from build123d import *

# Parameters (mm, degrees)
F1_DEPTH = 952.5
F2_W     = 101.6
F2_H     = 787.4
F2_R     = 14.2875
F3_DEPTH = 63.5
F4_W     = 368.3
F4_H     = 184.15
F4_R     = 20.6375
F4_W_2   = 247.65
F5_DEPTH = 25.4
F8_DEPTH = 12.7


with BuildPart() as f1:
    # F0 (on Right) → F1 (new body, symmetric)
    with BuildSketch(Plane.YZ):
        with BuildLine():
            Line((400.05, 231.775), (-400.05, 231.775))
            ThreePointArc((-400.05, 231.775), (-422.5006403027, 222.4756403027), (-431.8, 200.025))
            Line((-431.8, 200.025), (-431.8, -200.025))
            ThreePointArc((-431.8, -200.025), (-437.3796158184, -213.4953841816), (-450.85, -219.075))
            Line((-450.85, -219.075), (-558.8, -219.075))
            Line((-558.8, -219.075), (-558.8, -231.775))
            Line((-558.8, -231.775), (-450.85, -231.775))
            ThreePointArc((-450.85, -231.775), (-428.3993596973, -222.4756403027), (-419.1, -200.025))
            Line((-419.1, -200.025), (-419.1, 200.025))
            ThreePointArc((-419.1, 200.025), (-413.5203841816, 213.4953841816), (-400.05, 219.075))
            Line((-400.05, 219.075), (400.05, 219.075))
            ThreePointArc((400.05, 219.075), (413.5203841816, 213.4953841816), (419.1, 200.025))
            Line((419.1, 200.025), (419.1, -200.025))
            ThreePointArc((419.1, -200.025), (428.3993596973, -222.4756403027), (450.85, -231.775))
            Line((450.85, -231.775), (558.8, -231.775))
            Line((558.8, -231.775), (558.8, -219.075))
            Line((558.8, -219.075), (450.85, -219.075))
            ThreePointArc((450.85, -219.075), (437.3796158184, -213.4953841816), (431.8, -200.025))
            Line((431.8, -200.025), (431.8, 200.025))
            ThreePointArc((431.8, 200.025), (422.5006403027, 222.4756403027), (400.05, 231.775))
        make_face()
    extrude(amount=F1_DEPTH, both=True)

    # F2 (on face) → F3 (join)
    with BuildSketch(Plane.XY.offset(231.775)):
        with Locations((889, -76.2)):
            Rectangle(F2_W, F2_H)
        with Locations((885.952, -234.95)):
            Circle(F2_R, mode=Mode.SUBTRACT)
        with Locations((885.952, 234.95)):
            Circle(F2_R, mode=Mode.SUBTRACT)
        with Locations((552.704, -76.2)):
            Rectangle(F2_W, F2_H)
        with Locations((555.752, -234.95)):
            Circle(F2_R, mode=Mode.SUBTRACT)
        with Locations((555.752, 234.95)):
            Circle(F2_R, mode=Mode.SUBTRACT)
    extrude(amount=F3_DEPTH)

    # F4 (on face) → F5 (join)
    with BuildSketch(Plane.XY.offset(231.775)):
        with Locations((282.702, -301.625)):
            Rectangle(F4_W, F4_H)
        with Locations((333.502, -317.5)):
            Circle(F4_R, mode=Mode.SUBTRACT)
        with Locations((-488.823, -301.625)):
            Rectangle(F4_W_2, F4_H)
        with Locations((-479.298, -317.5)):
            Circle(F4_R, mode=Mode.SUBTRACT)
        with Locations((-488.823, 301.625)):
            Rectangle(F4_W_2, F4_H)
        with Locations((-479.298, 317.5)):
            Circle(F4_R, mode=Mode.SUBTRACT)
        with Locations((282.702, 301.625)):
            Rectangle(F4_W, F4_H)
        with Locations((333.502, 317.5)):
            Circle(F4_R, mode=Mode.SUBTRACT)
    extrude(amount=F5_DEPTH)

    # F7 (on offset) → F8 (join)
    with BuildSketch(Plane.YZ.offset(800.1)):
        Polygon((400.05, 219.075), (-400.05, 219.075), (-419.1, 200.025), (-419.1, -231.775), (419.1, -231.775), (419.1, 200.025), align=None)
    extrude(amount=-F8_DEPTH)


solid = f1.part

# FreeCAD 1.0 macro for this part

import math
import FreeCAD as App
import Part
import Sketcher

V = App.Vector
Q = App.Units.Quantity


def add_polygon(sketch, points):
    """Adds a closed chain of lines whose ends are joined by coincident constraints."""
    first, n = sketch.GeometryCount, len(points)
    for a, b in zip(points, points[1:] + points[:1]):
        sketch.addGeometry(Part.LineSegment(App.Vector(*a, 0), App.Vector(*b, 0)), False)
    for i in range(n):
        sketch.addConstraint(Sketcher.Constraint("Coincident", first + i, 2, first + (i + 1) % n, 1))

doc = App.newDocument("Part")
params = doc.addObject("Spreadsheet::Sheet", "Params")
for row, (alias, value) in enumerate([
    ("sketch1_radius", "1.25 in"),
    ("sketch1_radius2", "0.75 in"),
    ("sketch1_width", "31.5 in"),
    ("pad1_length", "75 in"),
    ("sketch2_width", "4 in"),
    ("sketch2_height", "31 in"),
    ("sketch2_diameter", "1.125 in"),
    ("pad2_length", "2.5 in"),
    ("sketch3_diameter", "1.625 in"),
    ("sketch3_width", "14.5 in"),
    ("sketch3_width2", "9.75 in"),
    ("sketch3_height", "7.25 in"),
    ("pad3_length", "1 in"),
    ("sketch4_width", "33 in"),
    ("sketch4_height", "17 in"),
    ("sketch4_width2", "31.5 in"),
    ("pad4_length", "0.5 in"),
], start=1):
    params.set(f"A{row}", alias)
    params.set(f"B{row}", "=" + value)
    params.setAlias(f"B{row}", alias)

body = doc.addObject("PartDesign::Body", "Body")

sketch1 = body.newObject("Sketcher::SketchObject", "Sketch")
sketch1.AttachmentSupport = (doc.getObject("YZ_Plane"), [""])
sketch1.MapMode = "FlatFace"
sketch1.addGeometry([
    Part.LineSegment(V(400.05, 231.775, 0), V(-400.05, 231.775, 0)),
    Part.ArcOfCircle(Part.Circle(V(-400.05, 200.025, 0), V(0, 0, 1), 31.75), math.radians(90), math.radians(180)),
    Part.LineSegment(V(-431.8, 200.025, 0), V(-431.8, -200.025, 0)),
    Part.ArcOfCircle(Part.Circle(V(-450.85, -200.025, 0), V(0, 0, 1), 19.05), math.radians(-90), math.radians(0)),
    Part.LineSegment(V(-450.85, -219.075, 0), V(-558.8, -219.075, 0)),
    Part.LineSegment(V(-558.8, -219.075, 0), V(-558.8, -231.775, 0)),
    Part.LineSegment(V(-558.8, -231.775, 0), V(-450.85, -231.775, 0)),
    Part.ArcOfCircle(Part.Circle(V(-450.85, -200.025, 0), V(0, 0, 1), 31.75), math.radians(-90), math.radians(0)),
    Part.LineSegment(V(-419.1, -200.025, 0), V(-419.1, 200.025, 0)),
    Part.ArcOfCircle(Part.Circle(V(-400.05, 200.025, 0), V(0, 0, 1), 19.05), math.radians(90), math.radians(180)),
    Part.LineSegment(V(-400.05, 219.075, 0), V(400.05, 219.075, 0)),
    Part.ArcOfCircle(Part.Circle(V(400.05, 200.025, 0), V(0, 0, 1), 19.05), math.radians(0), math.radians(90)),
    Part.LineSegment(V(419.1, 200.025, 0), V(419.1, -200.025, 0)),
    Part.ArcOfCircle(Part.Circle(V(450.85, -200.025, 0), V(0, 0, 1), 31.75), math.radians(180), math.radians(270)),
    Part.LineSegment(V(450.85, -231.775, 0), V(558.8, -231.775, 0)),
    Part.LineSegment(V(558.8, -231.775, 0), V(558.8, -219.075, 0)),
    Part.LineSegment(V(558.8, -219.075, 0), V(450.85, -219.075, 0)),
    Part.ArcOfCircle(Part.Circle(V(450.85, -200.025, 0), V(0, 0, 1), 19.05), math.radians(180), math.radians(270)),
    Part.LineSegment(V(431.8, -200.025, 0), V(431.8, 200.025, 0)),
    Part.ArcOfCircle(Part.Circle(V(400.05, 200.025, 0), V(0, 0, 1), 31.75), math.radians(0), math.radians(90)),
], False)
sketch1.addConstraint([
    Sketcher.Constraint("Tangent", 0, 2, 1, 1),
    Sketcher.Constraint("Tangent", 1, 2, 2, 1),
    Sketcher.Constraint("Tangent", 2, 2, 3, 2),
    Sketcher.Constraint("Tangent", 3, 1, 4, 1),
    Sketcher.Constraint("Coincident", 4, 2, 5, 1),
    Sketcher.Constraint("Coincident", 5, 2, 6, 1),
    Sketcher.Constraint("Tangent", 6, 2, 7, 1),
    Sketcher.Constraint("Tangent", 7, 2, 8, 1),
    Sketcher.Constraint("Tangent", 8, 2, 9, 2),
    Sketcher.Constraint("Tangent", 9, 1, 10, 1),
    Sketcher.Constraint("Tangent", 10, 2, 11, 2),
    Sketcher.Constraint("Tangent", 11, 1, 12, 1),
    Sketcher.Constraint("Tangent", 12, 2, 13, 1),
    Sketcher.Constraint("Tangent", 13, 2, 14, 1),
    Sketcher.Constraint("Coincident", 14, 2, 15, 1),
    Sketcher.Constraint("Coincident", 15, 2, 16, 1),
    Sketcher.Constraint("Tangent", 16, 2, 17, 2),
    Sketcher.Constraint("Tangent", 17, 1, 18, 1),
    Sketcher.Constraint("Tangent", 18, 2, 19, 1),
    Sketcher.Constraint("Tangent", 19, 2, 0, 1),
    Sketcher.Constraint("Horizontal", 0),
    Sketcher.Constraint("Vertical", 2),
    Sketcher.Constraint("Horizontal", 4),
    Sketcher.Constraint("Vertical", 5),
    Sketcher.Constraint("Horizontal", 6),
    Sketcher.Constraint("Vertical", 8),
    Sketcher.Constraint("Horizontal", 10),
    Sketcher.Constraint("Vertical", 12),
    Sketcher.Constraint("Horizontal", 14),
    Sketcher.Constraint("Vertical", 15),
    Sketcher.Constraint("Horizontal", 16),
    Sketcher.Constraint("Vertical", 18),
    Sketcher.Constraint("Coincident", 7, 3, 3, 3),
    Sketcher.Constraint("Coincident", 9, 3, 1, 3),
    Sketcher.Constraint("Coincident", 17, 3, 13, 3),
    Sketcher.Constraint("Coincident", 19, 3, 11, 3),
    Sketcher.Constraint("Equal", 1, 7),
    Sketcher.Constraint("Equal", 9, 11),
    Sketcher.Constraint("Equal", 7, 13),
    Sketcher.Constraint("Symmetric", 7, 2, 11, 1, -1, 1),
    Sketcher.Constraint("Symmetric", 5, 2, 14, 2, -2),
    Sketcher.Constraint("Radius", 1, Q("1.25 in")),
    Sketcher.Constraint("Radius", 3, Q("0.75 in")),
    Sketcher.Constraint("DistanceX", 0, 2, 0, 1, Q("31.5 in")),
    Sketcher.Constraint("DistanceX", 4, 2, -1, 1, Q("22 in")),
    Sketcher.Constraint("DistanceY", 3, 3, 0, 2, Q("17 in")),
])
sketch1.setExpression("Constraints[41]", "Params.sketch1_radius")
sketch1.setExpression("Constraints[42]", "Params.sketch1_radius2")
sketch1.setExpression("Constraints[43]", "Params.sketch1_width")
pad1 = body.newObject("PartDesign::Pad", "Pad")
pad1.Profile = sketch1
pad1.setExpression("Length", "Params.pad1_length")
pad1.Midplane = True

sketch2 = body.newObject("Sketcher::SketchObject", "Sketch001")
sketch2.AttachmentSupport = (doc.getObject("XY_Plane"), [""])
sketch2.MapMode = "FlatFace"
sketch2.AttachmentOffset = App.Placement(V(0, 0, 9.125 * 25.4), App.Rotation())
add_polygon(sketch2, [(838.2, 317.5), (838.2, -469.9), (939.8, -469.9), (939.8, 317.5)])
sketch2.addGeometry(Part.Circle(V(885.952, -234.95, 0), V(0, 0, 1), 14.2875), False)
sketch2.addGeometry(Part.Circle(V(885.952, 234.95, 0), V(0, 0, 1), 14.2875), False)
add_polygon(sketch2, [(501.904, 317.5), (501.904, -469.9), (603.504, -469.9), (603.504, 317.5)])
sketch2.addGeometry(Part.Circle(V(555.752, -234.95, 0), V(0, 0, 1), 14.2875), False)
sketch2.addGeometry(Part.Circle(V(555.752, 234.95, 0), V(0, 0, 1), 14.2875), False)
sketch2.addConstraint([
    Sketcher.Constraint("Vertical", 0),
    Sketcher.Constraint("Horizontal", 1),
    Sketcher.Constraint("Vertical", 2),
    Sketcher.Constraint("Horizontal", 3),
    Sketcher.Constraint("Vertical", 6),
    Sketcher.Constraint("Horizontal", 7),
    Sketcher.Constraint("Vertical", 8),
    Sketcher.Constraint("Horizontal", 9),
    Sketcher.Constraint("Equal", 4, 5),
    Sketcher.Constraint("Equal", 5, 10),
    Sketcher.Constraint("Equal", 10, 11),
    Sketcher.Constraint("Symmetric", 4, 3, 5, 3, -1),
    Sketcher.Constraint("Symmetric", 10, 3, 11, 3, -1),
    Sketcher.Constraint("Horizontal", 4, 3, 10, 3),
    Sketcher.Constraint("Horizontal", 1, 2, 6, 2),
    Sketcher.Constraint("Horizontal", 3, 2, 8, 2),
    Sketcher.Constraint("Equal", 3, 7),
    Sketcher.Constraint("DistanceX", 1, 1, 1, 2, Q("4 in")),
    Sketcher.Constraint("DistanceY", 0, 2, 0, 1, Q("31 in")),
    Sketcher.Constraint("Diameter", 4, Q("1.125 in")),
    Sketcher.Constraint("DistanceX", -1, 1, 0, 2, Q("33 in")),
    Sketcher.Constraint("DistanceX", 10, 3, 4, 3, Q("13 in")),
    Sketcher.Constraint("DistanceY", 0, 2, -1, 1, Q("18.5 in")),
    Sketcher.Constraint("DistanceY", 4, 3, 5, 3, Q("18.5 in")),
    Sketcher.Constraint("DistanceX", -1, 1, 4, 3, Q("34.88 in")),
    Sketcher.Constraint("DistanceX", -1, 1, 6, 2, Q("19.76 in")),
])
sketch2.setExpression("Constraints[25]", "Params.sketch2_width")
sketch2.setExpression("Constraints[26]", "Params.sketch2_height")
sketch2.setExpression("Constraints[27]", "Params.sketch2_diameter")
pad2 = body.newObject("PartDesign::Pad", "Pad001")
pad2.Profile = sketch2
pad2.setExpression("Length", "Params.pad2_length")

sketch3 = body.newObject("Sketcher::SketchObject", "Sketch002")
sketch3.AttachmentSupport = (doc.getObject("XY_Plane"), [""])
sketch3.MapMode = "FlatFace"
sketch3.AttachmentOffset = App.Placement(V(0, 0, 9.125 * 25.4), App.Rotation())
add_polygon(sketch3, [(98.552, -209.55), (98.552, -393.7), (466.852, -393.7), (466.852, -209.55)])
sketch3.addGeometry(Part.Circle(V(333.502, -317.5, 0), V(0, 0, 1), 20.6375), False)
add_polygon(sketch3, [(-612.648, -209.55), (-612.648, -393.7), (-364.998, -393.7), (-364.998, -209.55)])
sketch3.addGeometry(Part.Circle(V(-479.298, -317.5, 0), V(0, 0, 1), 20.6375), False)
add_polygon(sketch3, [(-612.648, 393.7), (-612.648, 209.55), (-364.998, 209.55), (-364.998, 393.7)])
sketch3.addGeometry(Part.Circle(V(-479.298, 317.5, 0), V(0, 0, 1), 20.6375), False)
add_polygon(sketch3, [(98.552, 393.7), (98.552, 209.55), (466.852, 209.55), (466.852, 393.7)])
sketch3.addGeometry(Part.Circle(V(333.502, 317.5, 0), V(0, 0, 1), 20.6375), False)
sketch3.addConstraint([
    Sketcher.Constraint("Vertical", 0),
    Sketcher.Constraint("Horizontal", 1),
    Sketcher.Constraint("Vertical", 2),
    Sketcher.Constraint("Horizontal", 3),
    Sketcher.Constraint("Vertical", 5),
    Sketcher.Constraint("Horizontal", 6),
    Sketcher.Constraint("Vertical", 7),
    Sketcher.Constraint("Horizontal", 8),
    Sketcher.Constraint("Vertical", 10),
    Sketcher.Constraint("Horizontal", 11),
    Sketcher.Constraint("Vertical", 12),
    Sketcher.Constraint("Horizontal", 13),
    Sketcher.Constraint("Vertical", 15),
    Sketcher.Constraint("Horizontal", 16),
    Sketcher.Constraint("Vertical", 17),
    Sketcher.Constraint("Horizontal", 18),
    Sketcher.Constraint("Equal", 4, 9),
    Sketcher.Constraint("Equal", 9, 14),
    Sketcher.Constraint("Equal", 14, 19),
    Sketcher.Constraint("Symmetric", 9, 3, 14, 3, -1),
    Sketcher.Constraint("Symmetric", 4, 3, 19, 3, -1),
    Sketcher.Constraint("Symmetric", 8, 2, 10, 2, -1),
    Sketcher.Constraint("Symmetric", 6, 2, 12, 2, -1),
    Sketcher.Constraint("Symmetric", 3, 2, 15, 2, -1),
    Sketcher.Constraint("Symmetric", 1, 2, 17, 2, -1),
    Sketcher.Constraint("Horizontal", 4, 3, 9, 3),
    Sketcher.Constraint("Horizontal", 1, 2, 5, 2),
    Sketcher.Constraint("Horizontal", 3, 2, 7, 2),
    Sketcher.Constraint("Diameter", 4, Q("1.625 in")),
    Sketcher.Constraint("DistanceX", 1, 1, 1, 2, Q("14.5 in")),
    Sketcher.Constraint("DistanceX", 9, 3, 4, 3, Q("32 in")),
    Sketcher.Constraint("DistanceY", 9, 3, 14, 3, Q("25 in")),
    Sketcher.Constraint("DistanceY", 0, 2, 4, 3, Q("3 in")),
    Sketcher.Constraint("DistanceX", 5, 2, 0, 2, Q("28 in")),
    Sketcher.Constraint("DistanceX", 6, 1, 6, 2, Q("9.75 in")),
    Sketcher.Constraint("DistanceY", 0, 2, 0, 1, Q("7.25 in")),
    Sketcher.Constraint("DistanceX", 9, 3, 6, 2, Q("4.5 in")),
    Sketcher.Constraint("DistanceX", -1, 1, 4, 3, Q("13.13 in")),
])
sketch3.setExpression("Constraints[44]", "Params.sketch3_diameter")
sketch3.setExpression("Constraints[45]", "Params.sketch3_width")
sketch3.setExpression("Constraints[50]", "Params.sketch3_width2")
sketch3.setExpression("Constraints[51]", "Params.sketch3_height")
pad3 = body.newObject("PartDesign::Pad", "Pad002")
pad3.Profile = sketch3
pad3.setExpression("Length", "Params.pad3_length")

sketch4 = body.newObject("Sketcher::SketchObject", "Sketch003")
sketch4.AttachmentSupport = (doc.getObject("YZ_Plane"), [""])
sketch4.MapMode = "FlatFace"
sketch4.AttachmentOffset = App.Placement(V(0, 0, 31.5 * 25.4), App.Rotation())
add_polygon(sketch4, [(400.05, 219.075), (-400.05, 219.075), (-419.1, 200.025), (-419.1, -231.775), (419.1, -231.775), (419.1, 200.025)])
sketch4.addConstraint([
    Sketcher.Constraint("Horizontal", 0),
    Sketcher.Constraint("Vertical", 2),
    Sketcher.Constraint("Horizontal", 3),
    Sketcher.Constraint("Vertical", 4),
    Sketcher.Constraint("Symmetric", 1, 2, 4, 2, -2),
    Sketcher.Constraint("Perpendicular", 1, 5),
    Sketcher.Constraint("Equal", 1, 5),
    Sketcher.Constraint("DistanceX", 3, 1, 3, 2, Q("33 in")),
    Sketcher.Constraint("DistanceY", 2, 2, 2, 1, Q("17 in")),
    Sketcher.Constraint("DistanceX", 0, 2, 0, 1, Q("31.5 in")),
    Sketcher.Constraint("DistanceY", -1, 1, 0, 2, Q("8.625 in")),
])
sketch4.setExpression("Constraints[13]", "Params.sketch4_width")
sketch4.setExpression("Constraints[14]", "Params.sketch4_height")
sketch4.setExpression("Constraints[15]", "Params.sketch4_width2")
pad4 = body.newObject("PartDesign::Pad", "Pad003")
pad4.Profile = sketch4
pad4.setExpression("Length", "Params.pad4_length")
pad4.Reversed = True

doc.recompute()
